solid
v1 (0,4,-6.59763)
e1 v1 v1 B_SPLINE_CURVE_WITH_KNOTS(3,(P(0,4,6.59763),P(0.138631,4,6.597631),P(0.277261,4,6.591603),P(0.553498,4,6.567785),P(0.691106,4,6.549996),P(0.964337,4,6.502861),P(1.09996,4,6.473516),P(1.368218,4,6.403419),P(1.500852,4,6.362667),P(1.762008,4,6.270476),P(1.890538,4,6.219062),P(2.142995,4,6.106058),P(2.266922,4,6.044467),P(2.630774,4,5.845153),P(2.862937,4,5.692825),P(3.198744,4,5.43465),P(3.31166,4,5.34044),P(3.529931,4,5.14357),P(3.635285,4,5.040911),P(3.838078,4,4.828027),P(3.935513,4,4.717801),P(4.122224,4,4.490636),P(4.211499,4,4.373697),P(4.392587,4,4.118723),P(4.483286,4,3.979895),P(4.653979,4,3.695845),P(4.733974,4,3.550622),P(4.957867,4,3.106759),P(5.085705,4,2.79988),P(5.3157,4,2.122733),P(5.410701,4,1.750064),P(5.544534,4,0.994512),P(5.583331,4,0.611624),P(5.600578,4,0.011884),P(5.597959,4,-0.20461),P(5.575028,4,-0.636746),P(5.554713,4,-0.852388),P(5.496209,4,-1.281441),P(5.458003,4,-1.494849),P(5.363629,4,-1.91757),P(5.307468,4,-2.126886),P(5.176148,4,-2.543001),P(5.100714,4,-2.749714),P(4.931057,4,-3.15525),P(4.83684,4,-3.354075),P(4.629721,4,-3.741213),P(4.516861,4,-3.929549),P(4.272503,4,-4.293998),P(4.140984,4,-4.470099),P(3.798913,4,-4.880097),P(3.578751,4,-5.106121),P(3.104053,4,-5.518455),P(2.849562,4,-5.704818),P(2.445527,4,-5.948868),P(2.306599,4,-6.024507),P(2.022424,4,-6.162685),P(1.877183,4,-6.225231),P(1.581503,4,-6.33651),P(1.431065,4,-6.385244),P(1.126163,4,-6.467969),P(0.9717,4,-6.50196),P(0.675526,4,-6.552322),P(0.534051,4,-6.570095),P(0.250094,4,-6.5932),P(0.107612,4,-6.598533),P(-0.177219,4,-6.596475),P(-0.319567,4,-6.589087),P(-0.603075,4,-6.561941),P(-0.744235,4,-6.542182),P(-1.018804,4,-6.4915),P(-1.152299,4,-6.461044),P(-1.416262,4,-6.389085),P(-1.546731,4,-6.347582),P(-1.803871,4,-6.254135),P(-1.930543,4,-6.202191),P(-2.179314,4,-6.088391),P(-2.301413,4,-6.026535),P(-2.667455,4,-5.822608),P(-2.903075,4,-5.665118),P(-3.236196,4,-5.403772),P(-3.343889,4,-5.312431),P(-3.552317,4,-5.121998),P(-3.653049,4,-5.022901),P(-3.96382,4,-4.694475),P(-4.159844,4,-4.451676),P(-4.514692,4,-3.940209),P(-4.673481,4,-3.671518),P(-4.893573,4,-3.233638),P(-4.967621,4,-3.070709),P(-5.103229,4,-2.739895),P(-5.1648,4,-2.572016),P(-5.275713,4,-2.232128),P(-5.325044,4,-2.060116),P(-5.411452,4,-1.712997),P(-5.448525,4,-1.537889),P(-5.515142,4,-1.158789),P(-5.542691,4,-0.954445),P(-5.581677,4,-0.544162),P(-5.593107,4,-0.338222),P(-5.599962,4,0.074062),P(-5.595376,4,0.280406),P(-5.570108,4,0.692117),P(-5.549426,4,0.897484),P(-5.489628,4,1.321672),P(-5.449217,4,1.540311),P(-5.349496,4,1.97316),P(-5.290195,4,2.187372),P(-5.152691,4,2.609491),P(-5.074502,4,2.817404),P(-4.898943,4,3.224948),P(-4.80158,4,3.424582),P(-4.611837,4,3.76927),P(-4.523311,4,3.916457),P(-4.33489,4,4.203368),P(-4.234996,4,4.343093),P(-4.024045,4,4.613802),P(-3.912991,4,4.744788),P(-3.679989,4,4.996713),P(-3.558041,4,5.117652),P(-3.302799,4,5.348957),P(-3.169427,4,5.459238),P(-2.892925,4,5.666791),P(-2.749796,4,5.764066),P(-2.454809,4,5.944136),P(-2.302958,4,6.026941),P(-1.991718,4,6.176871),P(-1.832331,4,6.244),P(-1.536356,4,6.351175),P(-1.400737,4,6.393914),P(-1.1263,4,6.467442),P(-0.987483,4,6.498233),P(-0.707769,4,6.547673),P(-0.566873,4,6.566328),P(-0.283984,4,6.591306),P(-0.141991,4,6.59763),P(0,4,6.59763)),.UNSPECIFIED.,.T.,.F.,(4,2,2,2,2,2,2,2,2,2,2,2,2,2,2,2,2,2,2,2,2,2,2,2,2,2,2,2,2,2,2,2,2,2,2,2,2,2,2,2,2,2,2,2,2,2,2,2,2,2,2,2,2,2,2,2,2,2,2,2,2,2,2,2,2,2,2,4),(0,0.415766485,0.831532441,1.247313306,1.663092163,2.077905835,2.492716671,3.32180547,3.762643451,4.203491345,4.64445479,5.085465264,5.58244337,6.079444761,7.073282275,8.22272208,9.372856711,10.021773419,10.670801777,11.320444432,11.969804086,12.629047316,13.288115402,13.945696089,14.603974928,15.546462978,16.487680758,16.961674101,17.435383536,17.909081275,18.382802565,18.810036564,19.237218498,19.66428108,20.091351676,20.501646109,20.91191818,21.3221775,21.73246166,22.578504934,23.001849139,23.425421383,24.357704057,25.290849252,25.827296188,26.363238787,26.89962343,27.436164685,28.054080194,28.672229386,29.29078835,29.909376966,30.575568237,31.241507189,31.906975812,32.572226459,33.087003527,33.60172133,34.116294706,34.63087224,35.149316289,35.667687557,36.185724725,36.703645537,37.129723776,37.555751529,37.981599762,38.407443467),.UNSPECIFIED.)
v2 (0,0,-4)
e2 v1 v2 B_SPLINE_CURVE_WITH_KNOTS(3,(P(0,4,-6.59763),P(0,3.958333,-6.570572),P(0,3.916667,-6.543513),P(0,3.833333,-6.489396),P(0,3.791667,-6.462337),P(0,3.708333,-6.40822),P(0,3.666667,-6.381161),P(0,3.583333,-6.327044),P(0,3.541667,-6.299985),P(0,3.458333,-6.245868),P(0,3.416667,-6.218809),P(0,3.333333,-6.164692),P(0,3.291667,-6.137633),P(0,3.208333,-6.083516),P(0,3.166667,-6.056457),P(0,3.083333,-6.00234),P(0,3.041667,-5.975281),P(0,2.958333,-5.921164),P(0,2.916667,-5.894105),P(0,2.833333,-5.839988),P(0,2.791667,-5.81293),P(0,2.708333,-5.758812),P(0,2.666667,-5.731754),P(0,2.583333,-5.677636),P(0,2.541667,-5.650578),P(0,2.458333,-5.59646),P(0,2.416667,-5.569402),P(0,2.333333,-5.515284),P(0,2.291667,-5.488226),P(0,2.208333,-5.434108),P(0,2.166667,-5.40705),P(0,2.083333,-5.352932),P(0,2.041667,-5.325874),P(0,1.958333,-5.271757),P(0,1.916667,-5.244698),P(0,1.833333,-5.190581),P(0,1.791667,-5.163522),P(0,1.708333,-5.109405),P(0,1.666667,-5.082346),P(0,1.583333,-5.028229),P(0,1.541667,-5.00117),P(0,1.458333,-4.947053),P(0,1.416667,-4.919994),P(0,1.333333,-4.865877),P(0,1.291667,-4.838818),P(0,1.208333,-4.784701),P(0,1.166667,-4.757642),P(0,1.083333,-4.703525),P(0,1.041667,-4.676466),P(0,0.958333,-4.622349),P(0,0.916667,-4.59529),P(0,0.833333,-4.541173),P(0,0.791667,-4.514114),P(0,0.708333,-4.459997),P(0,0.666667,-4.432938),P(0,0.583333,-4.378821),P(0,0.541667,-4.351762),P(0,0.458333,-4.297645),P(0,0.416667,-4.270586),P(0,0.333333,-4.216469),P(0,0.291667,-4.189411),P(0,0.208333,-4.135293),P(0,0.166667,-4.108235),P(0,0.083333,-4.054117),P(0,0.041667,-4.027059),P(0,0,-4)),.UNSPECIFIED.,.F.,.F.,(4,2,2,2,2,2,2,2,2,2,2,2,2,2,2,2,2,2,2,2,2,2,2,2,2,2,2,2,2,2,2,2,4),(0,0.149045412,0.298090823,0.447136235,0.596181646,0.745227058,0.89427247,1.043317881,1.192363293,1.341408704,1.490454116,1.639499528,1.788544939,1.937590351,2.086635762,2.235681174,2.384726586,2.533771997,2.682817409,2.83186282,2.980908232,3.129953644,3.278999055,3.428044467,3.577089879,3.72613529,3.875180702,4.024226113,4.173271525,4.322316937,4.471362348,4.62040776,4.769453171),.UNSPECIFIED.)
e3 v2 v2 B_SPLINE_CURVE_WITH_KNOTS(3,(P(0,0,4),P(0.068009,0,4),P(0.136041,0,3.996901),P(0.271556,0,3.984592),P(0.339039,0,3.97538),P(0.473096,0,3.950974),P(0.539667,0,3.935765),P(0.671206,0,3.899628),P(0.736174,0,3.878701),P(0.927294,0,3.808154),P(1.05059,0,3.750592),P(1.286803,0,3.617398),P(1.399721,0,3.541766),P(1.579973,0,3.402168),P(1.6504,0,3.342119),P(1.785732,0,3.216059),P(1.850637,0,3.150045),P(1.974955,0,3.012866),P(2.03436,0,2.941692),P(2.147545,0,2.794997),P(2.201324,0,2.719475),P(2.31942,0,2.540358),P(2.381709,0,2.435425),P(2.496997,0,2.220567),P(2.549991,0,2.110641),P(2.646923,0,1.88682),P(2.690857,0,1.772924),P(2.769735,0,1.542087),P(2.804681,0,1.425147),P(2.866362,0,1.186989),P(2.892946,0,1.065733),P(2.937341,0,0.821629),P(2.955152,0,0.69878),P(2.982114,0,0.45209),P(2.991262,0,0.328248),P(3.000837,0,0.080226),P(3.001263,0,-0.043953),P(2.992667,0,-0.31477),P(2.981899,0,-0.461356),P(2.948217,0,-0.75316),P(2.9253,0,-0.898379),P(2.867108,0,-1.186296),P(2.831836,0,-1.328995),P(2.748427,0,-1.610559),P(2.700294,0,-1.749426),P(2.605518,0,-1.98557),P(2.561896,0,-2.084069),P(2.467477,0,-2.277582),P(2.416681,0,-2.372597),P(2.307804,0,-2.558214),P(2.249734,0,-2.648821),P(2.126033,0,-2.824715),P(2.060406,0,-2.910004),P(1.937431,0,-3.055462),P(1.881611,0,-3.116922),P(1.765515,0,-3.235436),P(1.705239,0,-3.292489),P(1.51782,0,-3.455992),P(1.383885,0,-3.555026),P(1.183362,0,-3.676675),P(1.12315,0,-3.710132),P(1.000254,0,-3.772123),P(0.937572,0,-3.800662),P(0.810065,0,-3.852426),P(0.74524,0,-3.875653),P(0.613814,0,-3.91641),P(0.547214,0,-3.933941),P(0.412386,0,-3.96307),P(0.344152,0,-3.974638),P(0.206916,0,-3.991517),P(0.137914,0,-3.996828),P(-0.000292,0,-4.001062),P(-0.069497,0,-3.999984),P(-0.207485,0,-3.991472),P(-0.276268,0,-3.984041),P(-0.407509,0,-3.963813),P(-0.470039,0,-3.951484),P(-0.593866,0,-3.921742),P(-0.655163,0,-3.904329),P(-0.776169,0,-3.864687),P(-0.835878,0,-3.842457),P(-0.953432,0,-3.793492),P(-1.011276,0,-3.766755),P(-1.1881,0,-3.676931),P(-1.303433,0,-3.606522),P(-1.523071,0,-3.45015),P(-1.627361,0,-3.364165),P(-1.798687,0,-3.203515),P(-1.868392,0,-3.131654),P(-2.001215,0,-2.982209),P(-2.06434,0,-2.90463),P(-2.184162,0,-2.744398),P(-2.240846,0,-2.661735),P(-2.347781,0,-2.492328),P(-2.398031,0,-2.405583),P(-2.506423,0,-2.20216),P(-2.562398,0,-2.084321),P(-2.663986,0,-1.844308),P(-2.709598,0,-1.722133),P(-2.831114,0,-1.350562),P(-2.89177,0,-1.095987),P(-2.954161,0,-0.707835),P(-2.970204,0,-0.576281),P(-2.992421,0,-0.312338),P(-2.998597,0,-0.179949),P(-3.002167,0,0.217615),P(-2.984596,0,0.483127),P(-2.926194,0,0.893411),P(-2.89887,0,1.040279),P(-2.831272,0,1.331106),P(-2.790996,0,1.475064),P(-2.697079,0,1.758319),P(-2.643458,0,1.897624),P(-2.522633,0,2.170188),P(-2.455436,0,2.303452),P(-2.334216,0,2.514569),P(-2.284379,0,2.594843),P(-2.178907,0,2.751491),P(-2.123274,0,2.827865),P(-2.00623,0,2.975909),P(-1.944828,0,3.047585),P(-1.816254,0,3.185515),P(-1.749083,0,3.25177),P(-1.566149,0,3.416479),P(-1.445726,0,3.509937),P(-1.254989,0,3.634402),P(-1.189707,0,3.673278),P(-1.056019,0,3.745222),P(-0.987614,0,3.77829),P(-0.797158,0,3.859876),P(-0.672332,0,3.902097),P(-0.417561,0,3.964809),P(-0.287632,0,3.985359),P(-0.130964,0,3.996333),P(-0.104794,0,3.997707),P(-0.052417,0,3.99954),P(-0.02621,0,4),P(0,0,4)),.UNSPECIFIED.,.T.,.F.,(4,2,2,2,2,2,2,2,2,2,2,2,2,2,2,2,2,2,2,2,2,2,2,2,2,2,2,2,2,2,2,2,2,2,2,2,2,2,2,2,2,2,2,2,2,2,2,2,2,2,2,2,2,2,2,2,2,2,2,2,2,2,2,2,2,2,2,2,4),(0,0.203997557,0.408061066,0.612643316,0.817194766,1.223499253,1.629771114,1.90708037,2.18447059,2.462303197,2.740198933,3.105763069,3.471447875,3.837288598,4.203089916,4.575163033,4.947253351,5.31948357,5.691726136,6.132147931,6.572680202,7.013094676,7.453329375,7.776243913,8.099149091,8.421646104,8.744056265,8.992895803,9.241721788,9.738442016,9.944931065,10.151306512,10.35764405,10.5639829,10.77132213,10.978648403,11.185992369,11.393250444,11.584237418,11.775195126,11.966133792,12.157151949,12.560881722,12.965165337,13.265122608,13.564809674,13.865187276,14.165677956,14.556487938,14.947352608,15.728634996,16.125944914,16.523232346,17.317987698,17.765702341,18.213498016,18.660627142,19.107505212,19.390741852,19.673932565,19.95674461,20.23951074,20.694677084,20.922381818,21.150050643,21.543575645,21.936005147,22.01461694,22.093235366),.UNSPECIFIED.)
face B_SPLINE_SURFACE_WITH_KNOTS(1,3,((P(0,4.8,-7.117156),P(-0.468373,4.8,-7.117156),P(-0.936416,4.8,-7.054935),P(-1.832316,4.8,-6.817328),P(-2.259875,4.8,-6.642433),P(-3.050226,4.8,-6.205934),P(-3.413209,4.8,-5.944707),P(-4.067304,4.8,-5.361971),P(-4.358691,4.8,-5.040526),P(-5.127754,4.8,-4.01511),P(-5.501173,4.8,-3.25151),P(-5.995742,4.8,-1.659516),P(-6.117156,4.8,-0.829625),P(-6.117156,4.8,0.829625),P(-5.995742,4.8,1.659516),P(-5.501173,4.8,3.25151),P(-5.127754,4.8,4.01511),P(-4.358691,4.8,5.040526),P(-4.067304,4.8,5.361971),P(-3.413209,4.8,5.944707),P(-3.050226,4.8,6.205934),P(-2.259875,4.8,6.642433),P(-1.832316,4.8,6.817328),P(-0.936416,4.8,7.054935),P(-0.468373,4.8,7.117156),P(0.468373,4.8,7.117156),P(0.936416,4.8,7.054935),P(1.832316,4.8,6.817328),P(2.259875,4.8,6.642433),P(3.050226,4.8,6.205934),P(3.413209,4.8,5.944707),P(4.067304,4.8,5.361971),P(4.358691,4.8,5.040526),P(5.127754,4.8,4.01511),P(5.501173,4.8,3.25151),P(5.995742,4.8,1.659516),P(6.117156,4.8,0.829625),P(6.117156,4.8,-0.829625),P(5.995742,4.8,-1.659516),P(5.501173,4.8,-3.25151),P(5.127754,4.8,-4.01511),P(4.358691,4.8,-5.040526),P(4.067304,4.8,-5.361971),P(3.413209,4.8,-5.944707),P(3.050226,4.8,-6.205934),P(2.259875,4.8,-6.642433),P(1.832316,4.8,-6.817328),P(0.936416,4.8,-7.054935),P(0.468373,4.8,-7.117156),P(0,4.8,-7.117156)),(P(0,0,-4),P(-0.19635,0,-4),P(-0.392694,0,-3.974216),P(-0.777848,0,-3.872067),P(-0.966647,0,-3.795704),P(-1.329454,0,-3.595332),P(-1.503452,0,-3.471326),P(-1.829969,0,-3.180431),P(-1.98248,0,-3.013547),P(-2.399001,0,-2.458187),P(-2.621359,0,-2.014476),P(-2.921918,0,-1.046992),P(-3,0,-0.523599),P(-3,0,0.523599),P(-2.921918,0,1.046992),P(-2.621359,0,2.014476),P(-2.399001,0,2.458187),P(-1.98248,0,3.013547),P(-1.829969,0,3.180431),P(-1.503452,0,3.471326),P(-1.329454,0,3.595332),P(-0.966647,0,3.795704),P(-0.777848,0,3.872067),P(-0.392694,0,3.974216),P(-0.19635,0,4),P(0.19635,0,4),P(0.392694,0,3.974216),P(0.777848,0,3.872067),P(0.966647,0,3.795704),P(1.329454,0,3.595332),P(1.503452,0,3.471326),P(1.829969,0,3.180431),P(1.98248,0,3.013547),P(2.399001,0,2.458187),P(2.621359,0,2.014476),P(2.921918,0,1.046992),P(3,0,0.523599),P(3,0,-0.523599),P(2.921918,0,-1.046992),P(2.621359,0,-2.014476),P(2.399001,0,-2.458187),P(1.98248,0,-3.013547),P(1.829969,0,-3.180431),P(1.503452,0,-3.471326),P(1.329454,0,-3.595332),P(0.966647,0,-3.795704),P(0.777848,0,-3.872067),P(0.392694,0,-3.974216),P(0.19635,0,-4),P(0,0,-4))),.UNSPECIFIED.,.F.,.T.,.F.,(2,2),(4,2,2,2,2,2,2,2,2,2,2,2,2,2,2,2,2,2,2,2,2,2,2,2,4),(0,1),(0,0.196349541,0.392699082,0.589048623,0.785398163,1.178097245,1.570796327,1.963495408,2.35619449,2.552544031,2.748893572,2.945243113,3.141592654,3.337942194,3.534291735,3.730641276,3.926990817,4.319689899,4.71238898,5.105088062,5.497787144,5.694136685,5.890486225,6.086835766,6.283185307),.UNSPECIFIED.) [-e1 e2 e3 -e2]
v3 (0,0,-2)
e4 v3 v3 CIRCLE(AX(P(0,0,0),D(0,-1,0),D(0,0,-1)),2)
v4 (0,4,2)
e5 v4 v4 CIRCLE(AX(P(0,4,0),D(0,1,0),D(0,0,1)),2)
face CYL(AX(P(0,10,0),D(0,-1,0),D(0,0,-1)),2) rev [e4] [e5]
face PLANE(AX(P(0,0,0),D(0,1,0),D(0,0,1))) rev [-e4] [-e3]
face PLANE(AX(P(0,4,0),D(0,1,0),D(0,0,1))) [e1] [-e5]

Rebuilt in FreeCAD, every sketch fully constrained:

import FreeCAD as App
import Part
import Sketcher

V = App.Vector

doc = App.newDocument("Part")
body = doc.addObject("PartDesign::Body", "Body")

# Sketch on XZ plane
sketch1 = body.newObject("Sketcher::SketchObject", "Sketch")
sketch1.AttachmentSupport = (doc.getObject("XZ_Plane"), [""])
sketch1.MapMode = "FlatFace"
sketch1.addGeometry(Part.Ellipse(V(0, -4, 0), V(3, 0, 0), V(0, 0, 0)), False)
sketch1.addConstraint(Sketcher.Constraint("Block", 0))
pad1 = body.newObject("PartDesign::Pad", "Pad")
pad1.Profile = sketch1
pad1.Length = 4
pad1.Reversed = True
pad1.TaperAngle = 33

# Sketch on XZ plane
sketch2 = body.newObject("Sketcher::SketchObject", "Sketch001")
sketch2.AttachmentSupport = (doc.getObject("XZ_Plane"), [""])
sketch2.MapMode = "FlatFace"
sketch2.addGeometry(Part.Circle(V(0, 0, 0), V(0, 0, 1), 2), False)
sketch2.addConstraint([
    Sketcher.Constraint("Coincident", 0, 3, -1, 1),
    Sketcher.Constraint("Diameter", 0, 4.0),
])
pocket1 = body.newObject("PartDesign::Pocket", "Pocket")
pocket1.Profile = sketch2
pocket1.Length = 10

doc.recompute()
